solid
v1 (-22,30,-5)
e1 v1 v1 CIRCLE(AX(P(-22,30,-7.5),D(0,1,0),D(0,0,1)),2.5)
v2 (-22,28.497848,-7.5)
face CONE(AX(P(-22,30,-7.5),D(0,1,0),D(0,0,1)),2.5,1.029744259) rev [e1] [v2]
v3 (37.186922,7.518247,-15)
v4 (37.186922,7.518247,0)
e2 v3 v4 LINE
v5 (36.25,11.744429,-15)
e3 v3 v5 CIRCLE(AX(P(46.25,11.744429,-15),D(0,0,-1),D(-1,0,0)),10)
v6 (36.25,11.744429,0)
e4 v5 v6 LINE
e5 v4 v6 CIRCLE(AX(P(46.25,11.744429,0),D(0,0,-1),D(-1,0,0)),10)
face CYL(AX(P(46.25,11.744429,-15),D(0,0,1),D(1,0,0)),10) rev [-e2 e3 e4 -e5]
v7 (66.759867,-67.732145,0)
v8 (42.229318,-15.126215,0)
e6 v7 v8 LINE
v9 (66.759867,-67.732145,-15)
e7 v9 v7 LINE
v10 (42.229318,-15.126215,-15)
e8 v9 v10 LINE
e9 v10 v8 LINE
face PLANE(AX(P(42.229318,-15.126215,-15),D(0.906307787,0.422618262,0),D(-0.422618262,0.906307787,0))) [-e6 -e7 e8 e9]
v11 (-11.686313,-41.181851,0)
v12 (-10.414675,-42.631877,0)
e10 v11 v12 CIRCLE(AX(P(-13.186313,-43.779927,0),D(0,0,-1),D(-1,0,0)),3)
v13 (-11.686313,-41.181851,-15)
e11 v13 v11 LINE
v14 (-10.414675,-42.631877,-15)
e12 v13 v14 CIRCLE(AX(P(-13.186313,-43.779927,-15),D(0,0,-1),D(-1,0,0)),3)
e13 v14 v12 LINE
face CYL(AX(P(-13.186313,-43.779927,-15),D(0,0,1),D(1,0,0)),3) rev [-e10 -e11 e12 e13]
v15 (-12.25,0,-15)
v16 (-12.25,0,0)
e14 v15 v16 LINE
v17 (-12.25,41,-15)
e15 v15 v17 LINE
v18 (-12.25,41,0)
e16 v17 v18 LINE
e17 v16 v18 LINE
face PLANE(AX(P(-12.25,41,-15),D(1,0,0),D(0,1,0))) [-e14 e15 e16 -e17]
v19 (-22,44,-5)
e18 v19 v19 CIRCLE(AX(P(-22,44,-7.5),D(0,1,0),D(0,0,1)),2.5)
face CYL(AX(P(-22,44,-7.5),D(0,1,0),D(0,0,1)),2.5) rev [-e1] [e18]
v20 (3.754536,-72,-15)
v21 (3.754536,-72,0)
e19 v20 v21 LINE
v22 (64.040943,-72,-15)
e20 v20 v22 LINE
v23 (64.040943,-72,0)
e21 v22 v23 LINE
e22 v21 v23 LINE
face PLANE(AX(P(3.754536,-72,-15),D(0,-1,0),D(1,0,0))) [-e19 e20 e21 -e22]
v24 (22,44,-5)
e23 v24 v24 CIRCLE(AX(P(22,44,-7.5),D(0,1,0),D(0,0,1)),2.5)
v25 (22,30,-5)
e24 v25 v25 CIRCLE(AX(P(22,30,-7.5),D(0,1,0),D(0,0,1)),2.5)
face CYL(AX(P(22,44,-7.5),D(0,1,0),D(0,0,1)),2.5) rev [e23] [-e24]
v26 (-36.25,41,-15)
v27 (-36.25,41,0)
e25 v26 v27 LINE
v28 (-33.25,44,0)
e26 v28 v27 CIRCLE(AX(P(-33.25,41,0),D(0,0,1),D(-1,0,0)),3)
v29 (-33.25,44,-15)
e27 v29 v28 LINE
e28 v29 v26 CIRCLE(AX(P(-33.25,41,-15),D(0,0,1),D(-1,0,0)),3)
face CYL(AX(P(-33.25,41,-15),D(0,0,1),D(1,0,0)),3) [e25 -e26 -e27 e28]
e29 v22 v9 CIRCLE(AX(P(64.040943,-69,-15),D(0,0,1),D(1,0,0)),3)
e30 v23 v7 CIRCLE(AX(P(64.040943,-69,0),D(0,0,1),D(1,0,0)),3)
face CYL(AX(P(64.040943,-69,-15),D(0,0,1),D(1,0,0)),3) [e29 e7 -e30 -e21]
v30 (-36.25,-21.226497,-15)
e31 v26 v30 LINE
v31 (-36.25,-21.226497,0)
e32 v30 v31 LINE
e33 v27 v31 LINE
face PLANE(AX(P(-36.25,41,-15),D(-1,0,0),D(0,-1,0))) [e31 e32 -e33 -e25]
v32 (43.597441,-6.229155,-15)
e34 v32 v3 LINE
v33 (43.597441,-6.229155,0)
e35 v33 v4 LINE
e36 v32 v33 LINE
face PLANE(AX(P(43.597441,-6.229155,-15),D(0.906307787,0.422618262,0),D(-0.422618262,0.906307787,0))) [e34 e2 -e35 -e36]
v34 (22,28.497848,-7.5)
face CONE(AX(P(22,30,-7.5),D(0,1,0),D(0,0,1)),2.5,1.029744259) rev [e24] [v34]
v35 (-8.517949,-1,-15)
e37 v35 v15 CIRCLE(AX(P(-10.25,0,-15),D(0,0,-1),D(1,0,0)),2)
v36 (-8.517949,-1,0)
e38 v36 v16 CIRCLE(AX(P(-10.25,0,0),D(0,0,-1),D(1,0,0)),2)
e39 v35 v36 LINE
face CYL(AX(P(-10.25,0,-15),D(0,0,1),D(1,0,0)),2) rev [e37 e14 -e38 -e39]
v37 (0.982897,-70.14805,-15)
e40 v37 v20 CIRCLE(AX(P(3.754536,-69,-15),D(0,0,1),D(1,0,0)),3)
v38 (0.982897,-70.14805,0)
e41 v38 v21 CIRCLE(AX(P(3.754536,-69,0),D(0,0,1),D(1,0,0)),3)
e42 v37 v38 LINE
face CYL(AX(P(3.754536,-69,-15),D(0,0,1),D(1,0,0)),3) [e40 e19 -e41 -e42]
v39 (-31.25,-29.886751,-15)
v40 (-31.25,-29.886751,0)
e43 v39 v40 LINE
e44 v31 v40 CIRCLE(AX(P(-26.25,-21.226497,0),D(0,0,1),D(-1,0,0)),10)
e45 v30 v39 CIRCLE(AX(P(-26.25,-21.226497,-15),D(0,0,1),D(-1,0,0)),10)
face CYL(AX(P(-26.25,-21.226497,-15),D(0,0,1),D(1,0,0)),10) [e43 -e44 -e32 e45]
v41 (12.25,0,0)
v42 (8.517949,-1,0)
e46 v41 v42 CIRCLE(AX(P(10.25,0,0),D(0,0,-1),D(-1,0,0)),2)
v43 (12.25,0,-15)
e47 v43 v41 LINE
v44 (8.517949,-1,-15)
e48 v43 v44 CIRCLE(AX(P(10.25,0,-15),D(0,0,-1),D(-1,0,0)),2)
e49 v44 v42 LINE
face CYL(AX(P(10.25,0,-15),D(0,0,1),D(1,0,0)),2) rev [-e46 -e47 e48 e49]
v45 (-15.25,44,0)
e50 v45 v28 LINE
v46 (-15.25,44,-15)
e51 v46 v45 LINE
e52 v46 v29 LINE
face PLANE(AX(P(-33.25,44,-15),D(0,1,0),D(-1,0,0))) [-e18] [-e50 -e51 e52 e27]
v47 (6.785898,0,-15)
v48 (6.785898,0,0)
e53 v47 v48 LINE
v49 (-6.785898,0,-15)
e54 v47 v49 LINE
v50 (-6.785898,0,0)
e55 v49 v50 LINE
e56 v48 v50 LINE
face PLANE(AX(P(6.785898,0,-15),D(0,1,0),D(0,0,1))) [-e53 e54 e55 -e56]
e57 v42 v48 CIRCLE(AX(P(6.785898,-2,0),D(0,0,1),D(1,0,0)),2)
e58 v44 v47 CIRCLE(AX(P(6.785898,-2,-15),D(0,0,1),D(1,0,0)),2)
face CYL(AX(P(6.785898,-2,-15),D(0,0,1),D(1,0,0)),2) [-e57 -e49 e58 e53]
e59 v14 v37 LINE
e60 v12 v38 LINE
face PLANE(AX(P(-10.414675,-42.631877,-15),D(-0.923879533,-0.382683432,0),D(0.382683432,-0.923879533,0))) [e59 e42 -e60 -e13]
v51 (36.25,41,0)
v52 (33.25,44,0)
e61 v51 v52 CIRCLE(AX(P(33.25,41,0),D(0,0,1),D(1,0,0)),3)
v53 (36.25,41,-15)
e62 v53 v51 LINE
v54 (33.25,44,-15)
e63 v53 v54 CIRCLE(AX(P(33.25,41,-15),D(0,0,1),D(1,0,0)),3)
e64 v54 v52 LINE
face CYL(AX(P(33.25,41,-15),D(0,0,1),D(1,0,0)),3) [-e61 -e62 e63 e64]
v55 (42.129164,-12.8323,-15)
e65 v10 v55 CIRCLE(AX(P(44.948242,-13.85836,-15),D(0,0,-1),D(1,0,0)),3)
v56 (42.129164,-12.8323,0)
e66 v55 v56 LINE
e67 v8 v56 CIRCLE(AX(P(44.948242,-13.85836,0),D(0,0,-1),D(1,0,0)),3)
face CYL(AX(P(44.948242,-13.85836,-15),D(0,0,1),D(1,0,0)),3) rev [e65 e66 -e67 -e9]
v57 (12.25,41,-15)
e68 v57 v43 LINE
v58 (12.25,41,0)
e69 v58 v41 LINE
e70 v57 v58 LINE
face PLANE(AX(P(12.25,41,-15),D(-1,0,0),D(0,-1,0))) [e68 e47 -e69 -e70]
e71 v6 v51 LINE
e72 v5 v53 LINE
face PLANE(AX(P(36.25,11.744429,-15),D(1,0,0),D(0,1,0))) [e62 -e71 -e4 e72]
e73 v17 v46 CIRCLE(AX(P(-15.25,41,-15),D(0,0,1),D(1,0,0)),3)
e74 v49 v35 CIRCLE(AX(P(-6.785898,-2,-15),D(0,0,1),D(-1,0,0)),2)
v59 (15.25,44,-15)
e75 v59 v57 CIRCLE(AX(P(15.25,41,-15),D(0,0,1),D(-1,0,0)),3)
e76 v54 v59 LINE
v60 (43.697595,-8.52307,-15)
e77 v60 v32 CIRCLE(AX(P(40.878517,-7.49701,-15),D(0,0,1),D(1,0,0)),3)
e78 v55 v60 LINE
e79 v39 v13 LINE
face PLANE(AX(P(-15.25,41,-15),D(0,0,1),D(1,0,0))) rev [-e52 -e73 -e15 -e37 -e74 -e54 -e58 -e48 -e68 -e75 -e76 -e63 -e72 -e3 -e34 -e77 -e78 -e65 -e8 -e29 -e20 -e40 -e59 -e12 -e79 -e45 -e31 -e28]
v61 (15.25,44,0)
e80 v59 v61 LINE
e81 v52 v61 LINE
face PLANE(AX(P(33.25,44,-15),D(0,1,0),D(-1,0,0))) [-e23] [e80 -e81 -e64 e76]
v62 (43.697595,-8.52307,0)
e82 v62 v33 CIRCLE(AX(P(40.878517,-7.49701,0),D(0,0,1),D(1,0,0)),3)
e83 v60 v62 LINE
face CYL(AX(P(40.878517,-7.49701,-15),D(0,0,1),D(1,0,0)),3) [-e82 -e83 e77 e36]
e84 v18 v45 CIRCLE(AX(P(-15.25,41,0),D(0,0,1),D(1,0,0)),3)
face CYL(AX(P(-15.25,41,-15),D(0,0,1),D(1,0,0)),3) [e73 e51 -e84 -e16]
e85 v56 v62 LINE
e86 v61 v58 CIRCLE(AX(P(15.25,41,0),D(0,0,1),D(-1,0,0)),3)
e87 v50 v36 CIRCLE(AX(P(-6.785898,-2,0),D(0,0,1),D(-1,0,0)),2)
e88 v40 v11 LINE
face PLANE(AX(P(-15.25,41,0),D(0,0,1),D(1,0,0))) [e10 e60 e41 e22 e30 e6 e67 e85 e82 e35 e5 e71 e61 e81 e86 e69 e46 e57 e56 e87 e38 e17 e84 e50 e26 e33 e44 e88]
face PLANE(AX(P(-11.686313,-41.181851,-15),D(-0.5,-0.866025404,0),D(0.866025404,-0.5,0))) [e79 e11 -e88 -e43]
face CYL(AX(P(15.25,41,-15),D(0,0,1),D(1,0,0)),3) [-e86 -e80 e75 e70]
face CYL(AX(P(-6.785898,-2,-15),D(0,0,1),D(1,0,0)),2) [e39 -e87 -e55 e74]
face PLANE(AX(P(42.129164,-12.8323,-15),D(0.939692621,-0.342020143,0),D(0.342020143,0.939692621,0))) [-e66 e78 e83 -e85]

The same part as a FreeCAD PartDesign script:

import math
import FreeCAD as App
import Part
import Sketcher
Q = App.Units.Quantity

doc = App.newDocument("Part")
body = doc.addObject("PartDesign::Body", "Body")

sketch1 = body.newObject("Sketcher::SketchObject", "Sketch")
sketch1.AttachmentSupport = (doc.getObject("XY_Plane"), [""])
sketch1.MapMode = "FlatFace"
sketch1.addGeometry([
    Part.LineSegment(App.Vector(33.2, 44, 0), App.Vector(15.2, 44, 0)),
    Part.ArcOfCircle(Part.Circle(App.Vector(15.2, 41, 0), App.Vector(0, 0, 1), 3), math.radians(90), math.radians(180)),
    Part.LineSegment(App.Vector(12.2, 41, 0), App.Vector(12.2, 0, 0)),
    Part.ArcOfCircle(Part.Circle(App.Vector(10.2, 0, 0), App.Vector(0, 0, 1), 2), math.radians(-150), math.radians(0)),
    Part.ArcOfCircle(Part.Circle(App.Vector(6.8, -2, 0), App.Vector(0, 0, 1), 2), math.radians(30), math.radians(90)),
    Part.LineSegment(App.Vector(6.8, 0, 0), App.Vector(-6.8, 0, 0)),
    Part.ArcOfCircle(Part.Circle(App.Vector(-6.8, -2, 0), App.Vector(0, 0, 1), 2), math.radians(90), math.radians(150)),
    Part.ArcOfCircle(Part.Circle(App.Vector(-10.2, 0, 0), App.Vector(0, 0, 1), 2), math.radians(180), math.radians(330)),
    Part.LineSegment(App.Vector(-12.2, 0, 0), App.Vector(-12.2, 41, 0)),
    Part.ArcOfCircle(Part.Circle(App.Vector(-15.2, 41, 0), App.Vector(0, 0, 1), 3), math.radians(0), math.radians(90)),
    Part.LineSegment(App.Vector(-15.2, 44, 0), App.Vector(-33.2, 44, 0)),
    Part.ArcOfCircle(Part.Circle(App.Vector(-33.3, 41, 0), App.Vector(0, 0, 1), 3), math.radians(90), math.radians(180)),
    Part.LineSegment(App.Vector(-36.2, 41, 0), App.Vector(-36.2, -21.2, 0)),
    Part.ArcOfCircle(Part.Circle(App.Vector(-26.2, -21.2, 0), App.Vector(0, 0, 1), 10), math.radians(180), math.radians(240)),
    Part.LineSegment(App.Vector(-31.2, -29.9, 0), App.Vector(-11.7, -41.2, 0)),
    Part.ArcOfCircle(Part.Circle(App.Vector(-13.2, -43.8, 0), App.Vector(0, 0, 1), 3), math.radians(23), math.radians(60)),
    Part.LineSegment(App.Vector(-10.4, -42.6, 0), App.Vector(1, -70.1, 0)),
    Part.ArcOfCircle(Part.Circle(App.Vector(3.8, -69, 0), App.Vector(0, 0, 1), 3), math.radians(-157), math.radians(-90)),
    Part.LineSegment(App.Vector(3.8, -72, 0), App.Vector(64, -72, 0)),
    Part.ArcOfCircle(Part.Circle(App.Vector(64, -69, 0), App.Vector(0, 0, 1), 3), math.radians(-90), math.radians(25)),
    Part.LineSegment(App.Vector(66.8, -67.7, 0), App.Vector(42.2, -15.1, 0)),
    Part.ArcOfCircle(Part.Circle(App.Vector(44.9, -13.9, 0), App.Vector(0, 0, 1), 3), math.radians(160), math.radians(205)),
    Part.LineSegment(App.Vector(42.1, -12.8, 0), App.Vector(43.7, -8.5, 0)),
    Part.ArcOfCircle(Part.Circle(App.Vector(40.9, -7.5, 0), App.Vector(0, 0, 1), 3), math.radians(-20), math.radians(25)),
    Part.LineSegment(App.Vector(43.6, -6.2, 0), App.Vector(37.2, 7.5, 0)),
    Part.ArcOfCircle(Part.Circle(App.Vector(46.3, 11.7, 0), App.Vector(0, 0, 1), 10), math.radians(180), math.radians(205)),
    Part.LineSegment(App.Vector(36.2, 11.7, 0), App.Vector(36.2, 41, 0)),
    Part.ArcOfCircle(Part.Circle(App.Vector(33.3, 41, 0), App.Vector(0, 0, 1), 3), math.radians(0), math.radians(90)),
], False)
sketch1.addConstraint([
    Sketcher.Constraint("Tangent", 0, 2, 1, 1),
    Sketcher.Constraint("Tangent", 1, 2, 2, 1),
    Sketcher.Constraint("Tangent", 2, 2, 3, 2),
    Sketcher.Constraint("Tangent", 3, 1, 4, 1),
    Sketcher.Constraint("Tangent", 4, 2, 5, 1),
    Sketcher.Constraint("Tangent", 5, 2, 6, 1),
    Sketcher.Constraint("Tangent", 6, 2, 7, 2),
    Sketcher.Constraint("Tangent", 7, 1, 8, 1),
    Sketcher.Constraint("Tangent", 8, 2, 9, 1),
    Sketcher.Constraint("Tangent", 9, 2, 10, 1),
    Sketcher.Constraint("Tangent", 10, 2, 11, 1),
    Sketcher.Constraint("Tangent", 11, 2, 12, 1),
    Sketcher.Constraint("Tangent", 12, 2, 13, 1),
    Sketcher.Constraint("Tangent", 13, 2, 14, 1),
    Sketcher.Constraint("Tangent", 14, 2, 15, 2),
    Sketcher.Constraint("Tangent", 15, 1, 16, 1),
    Sketcher.Constraint("Tangent", 16, 2, 17, 1),
    Sketcher.Constraint("Tangent", 17, 2, 18, 1),
    Sketcher.Constraint("Tangent", 18, 2, 19, 1),
    Sketcher.Constraint("Tangent", 19, 2, 20, 1),
    Sketcher.Constraint("Tangent", 20, 2, 21, 2),
    Sketcher.Constraint("Tangent", 21, 1, 22, 1),
    Sketcher.Constraint("Tangent", 22, 2, 23, 1),
    Sketcher.Constraint("Tangent", 23, 2, 24, 1),
    Sketcher.Constraint("Tangent", 24, 2, 25, 2),
    Sketcher.Constraint("Tangent", 25, 1, 26, 1),
    Sketcher.Constraint("Tangent", 26, 2, 27, 1),
    Sketcher.Constraint("Tangent", 27, 2, 0, 1),
    Sketcher.Constraint("Horizontal", 0),
    Sketcher.Constraint("Vertical", 2),
    Sketcher.Constraint("Horizontal", 5),
    Sketcher.Constraint("Vertical", 8),
    Sketcher.Constraint("Horizontal", 10),
    Sketcher.Constraint("Vertical", 12),
    Sketcher.Constraint("Horizontal", 18),
    Sketcher.Constraint("Vertical", 26),
    Sketcher.Constraint("Equal", 3, 4),
    Sketcher.Constraint("Equal", 4, 6),
    Sketcher.Constraint("Equal", 6, 7),
    Sketcher.Constraint("Equal", 1, 9),
    Sketcher.Constraint("Equal", 9, 11),
    Sketcher.Constraint("Equal", 11, 15),
    Sketcher.Constraint("Equal", 15, 17),
    Sketcher.Constraint("Equal", 17, 19),
    Sketcher.Constraint("Equal", 19, 21),
    Sketcher.Constraint("Equal", 21, 23),
    Sketcher.Constraint("Equal", 13, 25),
    Sketcher.Constraint("Equal", 23, 27),
    Sketcher.Constraint("Symmetric", 3, 3, 7, 3, -1, 1),
    Sketcher.Constraint("Symmetric", 4, 2, 5, 2, -1, 1),
    Sketcher.Constraint("Symmetric", 11, 3, 27, 3, -2),
    Sketcher.Constraint("Parallel", 20, 24),
    Sketcher.Constraint("Radius", 1, 3.0),
    Sketcher.Constraint("Radius", 3, 2.0),
    Sketcher.Constraint("Radius", 13, 10.0),
    Sketcher.Constraint("DistanceX", 0, 2, 0, 1, 18.0),
    Sketcher.Constraint("DistanceY", 2, 2, 2, 1, 41.0),
    Sketcher.Constraint("Angle", 14, Q("-30 deg")),
    Sketcher.Constraint("Angle", 20, Q("115 deg")),
    Sketcher.Constraint("Angle", 22, Q("70 deg")),
    Sketcher.Constraint("DistanceY", 17, 3, -1, 1, 69.0),
    Sketcher.Constraint("Angle", 16, Q("-67.5 deg")),
    Sketcher.Constraint("DistanceX", 7, 3, 3, 3, 20.5),
    Sketcher.Constraint("Distance", 14, 22.590199),
    Sketcher.Constraint("DistanceY", 26, 1, 26, 2, 29.255571),
    Sketcher.Constraint("DistanceY", 21, 1, -1, 1, 12.8323),
    Sketcher.Constraint("DistanceY", 16, 2, 14, 2, 28.966199),
    Sketcher.Constraint("DistanceX", 23, 3, 20, 2, 1.350801),
])
pad1 = body.newObject("PartDesign::Pad", "Pad")
pad1.Profile = sketch1
pad1.Length = 15
pad1.Reversed = True

sketch2 = body.newObject("Sketcher::SketchObject", "Sketch001")
sketch2.AttachmentSupport = (doc.getObject("XZ_Plane"), [""])
sketch2.MapMode = "FlatFace"
sketch2.AttachmentOffset = App.Placement(App.Vector(0, 0, -44), App.Rotation())
sketch2.addGeometry([
    Part.Circle(App.Vector(-22, -7.5, 0), App.Vector(0, 0, 1), 2.5),
    Part.Circle(App.Vector(22, -7.5, 0), App.Vector(0, 0, 1), 2.5),
], False)
sketch2.addConstraint([
    Sketcher.Constraint("Equal", 0, 1),
    Sketcher.Constraint("Symmetric", 0, 3, 1, 3, -2),
    Sketcher.Constraint("Diameter", 0, 5.0),
    Sketcher.Constraint("DistanceX", 0, 3, -1, 1, 22.0),
    Sketcher.Constraint("DistanceY", 0, 3, -1, 1, 7.5),
])
doc.recompute()
hole = body.newObject("PartDesign::Hole", "Hole")
hole.Profile = sketch2
hole.ThreadType = "None"
hole.Diameter = 5
hole.DepthType = "Dimension"
hole.Depth = 14
hole.DrillPoint = "Angled"
hole.DrillPointAngle = 118
hole.Reversed = True

doc.recompute()
